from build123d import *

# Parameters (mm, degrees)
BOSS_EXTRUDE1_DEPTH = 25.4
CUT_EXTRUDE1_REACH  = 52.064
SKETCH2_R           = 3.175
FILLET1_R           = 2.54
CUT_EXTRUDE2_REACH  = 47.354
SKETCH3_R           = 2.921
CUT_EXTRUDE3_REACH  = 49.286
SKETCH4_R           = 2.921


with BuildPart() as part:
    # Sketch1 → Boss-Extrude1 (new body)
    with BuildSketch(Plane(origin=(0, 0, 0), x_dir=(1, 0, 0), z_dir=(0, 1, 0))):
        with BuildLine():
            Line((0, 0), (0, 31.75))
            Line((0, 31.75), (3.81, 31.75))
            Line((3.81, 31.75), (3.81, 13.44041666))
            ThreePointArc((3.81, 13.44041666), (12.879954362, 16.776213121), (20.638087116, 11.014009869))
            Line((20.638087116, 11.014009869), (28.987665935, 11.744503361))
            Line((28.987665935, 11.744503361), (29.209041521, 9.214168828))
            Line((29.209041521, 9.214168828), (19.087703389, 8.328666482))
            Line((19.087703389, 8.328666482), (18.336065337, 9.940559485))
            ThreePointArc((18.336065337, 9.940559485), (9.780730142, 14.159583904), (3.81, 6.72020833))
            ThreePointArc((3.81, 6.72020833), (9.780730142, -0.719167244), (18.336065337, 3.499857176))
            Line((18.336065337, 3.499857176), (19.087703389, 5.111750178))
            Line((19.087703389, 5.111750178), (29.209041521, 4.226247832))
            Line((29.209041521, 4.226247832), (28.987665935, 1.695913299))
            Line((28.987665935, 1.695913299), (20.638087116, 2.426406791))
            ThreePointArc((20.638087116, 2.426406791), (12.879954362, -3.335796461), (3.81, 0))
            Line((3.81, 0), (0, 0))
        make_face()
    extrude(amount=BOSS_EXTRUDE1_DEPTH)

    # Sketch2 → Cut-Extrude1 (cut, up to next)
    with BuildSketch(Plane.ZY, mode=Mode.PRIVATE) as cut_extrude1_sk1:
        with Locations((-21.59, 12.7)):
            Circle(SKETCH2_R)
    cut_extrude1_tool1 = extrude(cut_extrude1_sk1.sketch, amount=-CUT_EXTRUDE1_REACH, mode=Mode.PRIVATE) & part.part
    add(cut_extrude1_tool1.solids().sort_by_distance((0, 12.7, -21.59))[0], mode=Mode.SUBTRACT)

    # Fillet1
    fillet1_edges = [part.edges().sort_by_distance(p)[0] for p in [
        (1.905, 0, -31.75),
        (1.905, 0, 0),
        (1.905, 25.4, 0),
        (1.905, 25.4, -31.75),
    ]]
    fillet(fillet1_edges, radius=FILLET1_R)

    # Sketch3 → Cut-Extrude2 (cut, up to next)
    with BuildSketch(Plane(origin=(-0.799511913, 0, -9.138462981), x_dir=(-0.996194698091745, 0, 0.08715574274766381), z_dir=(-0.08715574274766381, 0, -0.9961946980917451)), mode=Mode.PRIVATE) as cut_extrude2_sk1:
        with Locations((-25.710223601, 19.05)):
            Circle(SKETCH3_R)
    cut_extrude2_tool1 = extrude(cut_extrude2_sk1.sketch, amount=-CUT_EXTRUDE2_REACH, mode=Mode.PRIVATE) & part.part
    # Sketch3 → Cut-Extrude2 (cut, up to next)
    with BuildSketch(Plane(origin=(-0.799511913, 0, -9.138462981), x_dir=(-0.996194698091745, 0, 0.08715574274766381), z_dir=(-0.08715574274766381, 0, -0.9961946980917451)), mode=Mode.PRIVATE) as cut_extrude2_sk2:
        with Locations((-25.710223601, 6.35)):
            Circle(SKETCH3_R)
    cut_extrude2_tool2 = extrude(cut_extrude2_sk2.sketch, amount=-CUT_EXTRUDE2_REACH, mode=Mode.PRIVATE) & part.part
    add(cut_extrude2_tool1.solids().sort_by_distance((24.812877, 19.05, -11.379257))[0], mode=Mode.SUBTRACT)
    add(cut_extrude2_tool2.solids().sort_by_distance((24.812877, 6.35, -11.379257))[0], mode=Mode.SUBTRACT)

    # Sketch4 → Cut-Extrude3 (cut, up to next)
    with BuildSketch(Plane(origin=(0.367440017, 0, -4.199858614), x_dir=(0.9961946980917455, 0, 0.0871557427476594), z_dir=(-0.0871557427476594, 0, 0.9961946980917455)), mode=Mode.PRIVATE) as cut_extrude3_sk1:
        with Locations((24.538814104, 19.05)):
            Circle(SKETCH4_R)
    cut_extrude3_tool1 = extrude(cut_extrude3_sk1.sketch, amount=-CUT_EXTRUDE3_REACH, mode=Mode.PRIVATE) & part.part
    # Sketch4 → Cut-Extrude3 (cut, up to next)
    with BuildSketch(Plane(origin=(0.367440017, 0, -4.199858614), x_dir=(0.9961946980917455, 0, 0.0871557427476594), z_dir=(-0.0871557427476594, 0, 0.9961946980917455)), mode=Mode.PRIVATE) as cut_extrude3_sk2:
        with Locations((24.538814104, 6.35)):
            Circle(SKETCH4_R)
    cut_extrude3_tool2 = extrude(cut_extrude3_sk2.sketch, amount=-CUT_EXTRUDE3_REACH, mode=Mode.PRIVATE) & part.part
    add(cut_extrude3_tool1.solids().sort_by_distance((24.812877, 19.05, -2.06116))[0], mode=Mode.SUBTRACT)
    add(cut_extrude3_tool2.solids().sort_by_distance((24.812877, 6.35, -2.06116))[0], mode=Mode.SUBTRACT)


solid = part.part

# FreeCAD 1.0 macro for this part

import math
import FreeCAD as App
import Part
import Sketcher
Q = App.Units.Quantity


def edges_at(feature, points):
    """Names of the edges that pass closest to the given points."""
    edges = feature.Shape.Edges
    near = lambda p: min(range(len(edges)), key=lambda i: edges[i].distToShape(Part.Vertex(*p))[0])
    return sorted({f"Edge{near(p) + 1}" for p in points})

doc = App.newDocument("Part")
params = doc.addObject("Spreadsheet::Sheet", "Params")
for row, (alias, value) in enumerate([
    ("sketch1_radius", "0.4 in"),
    ("sketch1_radius2", "0.3 in"),
    ("sketch1_length", "0.1 in"),
    ("sketch1_length2", "0.4 in"),
    ("sketch1_width", "0.15 in"),
    ("pad1_length", "1 in"),
    ("sketch2_diameter", "0.25 in"),
    ("fillet_radius", "0.1 in"),
    ("sketch3_diameter", "0.23 in"),
    ("sketch4_diameter", "0.23 in"),
    ("sketch5_diameter", "0.23 in"),
    ("sketch6_diameter", "0.23 in"),
], start=1):
    params.set(f"A{row}", alias)
    params.set(f"B{row}", "=" + value)
    params.setAlias(f"B{row}", alias)

body = doc.addObject("PartDesign::Body", "Body")

# Sketch on XZ plane
sketch1 = doc.addObject("Sketcher::SketchObject", "Sketch")
body.addObject(sketch1)
sketch1.AttachmentSupport = (doc.XZ_Plane, [""])
sketch1.MapMode = "FlatFace"
sketch1.addGeometry(Part.LineSegment(App.Vector(0, -31.8, 0), App.Vector(0, 0, 0)), False)
sketch1.addGeometry(Part.LineSegment(App.Vector(0, 0, 0), App.Vector(3.8, 0, 0)), False)
sketch1.addGeometry(Part.ArcOfCircle(Part.Circle(App.Vector(11.4, -6.7, 0), App.Vector(0, 0, 1), 10.2), math.radians(25), math.radians(139)), False)
sketch1.addGeometry(Part.LineSegment(App.Vector(20.6, -2.4, 0), App.Vector(29, -1.7, 0)), False)
sketch1.addGeometry(Part.LineSegment(App.Vector(29, -1.7, 0), App.Vector(29.2, -4.2, 0)), False)
sketch1.addGeometry(Part.LineSegment(App.Vector(29.2, -4.2, 0), App.Vector(19.1, -5.1, 0)), False)
sketch1.addGeometry(Part.LineSegment(App.Vector(19.1, -5.1, 0), App.Vector(18.3, -3.5, 0)), False)
sketch1.addGeometry(Part.ArcOfCircle(Part.Circle(App.Vector(11.4, -6.7, 0), App.Vector(0, 0, 1), 7.6), math.radians(25), math.radians(180)), False)
sketch1.addGeometry(Part.ArcOfCircle(Part.Circle(App.Vector(11.4, -6.7, 0), App.Vector(0, 0, 1), 7.6), math.radians(180), math.radians(335)), False)
sketch1.addGeometry(Part.LineSegment(App.Vector(18.3, -9.9, 0), App.Vector(19.1, -8.3, 0)), False)
sketch1.addGeometry(Part.LineSegment(App.Vector(19.1, -8.3, 0), App.Vector(29.2, -9.2, 0)), False)
sketch1.addGeometry(Part.LineSegment(App.Vector(29.2, -9.2, 0), App.Vector(29, -11.7, 0)), False)
sketch1.addGeometry(Part.LineSegment(App.Vector(29, -11.7, 0), App.Vector(20.6, -11, 0)), False)
sketch1.addGeometry(Part.ArcOfCircle(Part.Circle(App.Vector(11.4, -6.7, 0), App.Vector(0, 0, 1), 10.2), math.radians(-139), math.radians(-25)), False)
sketch1.addGeometry(Part.LineSegment(App.Vector(3.8, -13.4, 0), App.Vector(3.8, -31.8, 0)), False)
sketch1.addGeometry(Part.LineSegment(App.Vector(3.8, -31.8, 0), App.Vector(0, -31.8, 0)), False)
sketch1.addConstraint(Sketcher.Constraint("Coincident", 0, 2, 1, 1))
sketch1.addConstraint(Sketcher.Constraint("Coincident", 1, 2, 2, 2))
sketch1.addConstraint(Sketcher.Constraint("Coincident", 2, 1, 3, 1))
sketch1.addConstraint(Sketcher.Constraint("Coincident", 3, 2, 4, 1))
sketch1.addConstraint(Sketcher.Constraint("Coincident", 4, 2, 5, 1))
sketch1.addConstraint(Sketcher.Constraint("Coincident", 5, 2, 6, 1))
sketch1.addConstraint(Sketcher.Constraint("Tangent", 6, 2, 7, 1))
sketch1.addConstraint(Sketcher.Constraint("Tangent", 7, 2, 8, 1))
sketch1.addConstraint(Sketcher.Constraint("Tangent", 8, 2, 9, 1))
sketch1.addConstraint(Sketcher.Constraint("Coincident", 9, 2, 10, 1))
sketch1.addConstraint(Sketcher.Constraint("Coincident", 10, 2, 11, 1))
sketch1.addConstraint(Sketcher.Constraint("Coincident", 11, 2, 12, 1))
sketch1.addConstraint(Sketcher.Constraint("Coincident", 12, 2, 13, 2))
sketch1.addConstraint(Sketcher.Constraint("Coincident", 13, 1, 14, 1))
sketch1.addConstraint(Sketcher.Constraint("Coincident", 14, 2, 15, 1))
sketch1.addConstraint(Sketcher.Constraint("Coincident", 15, 2, 0, 1))
sketch1.addConstraint(Sketcher.Constraint("Vertical", 0))
sketch1.addConstraint(Sketcher.Constraint("Horizontal", 1))
sketch1.addConstraint(Sketcher.Constraint("Vertical", 14))
sketch1.addConstraint(Sketcher.Constraint("Horizontal", 15))
sketch1.addConstraint(Sketcher.Constraint("Coincident", 0, 2, -1, 1))
sketch1.addConstraint(Sketcher.Constraint("Coincident", 7, 3, 2, 3))
sketch1.addConstraint(Sketcher.Constraint("Coincident", 13, 3, 2, 3))
sketch1.addConstraint(Sketcher.Constraint("Equal", 7, 8))
sketch1.addConstraint(Sketcher.Constraint("Equal", 2, 13))
sketch1.addConstraint(Sketcher.Constraint("Perpendicular", 3, 4))
sketch1.addConstraint(Sketcher.Constraint("Perpendicular", 4, 5))
sketch1.addConstraint(Sketcher.Constraint("Perpendicular", 10, 11))
sketch1.addConstraint(Sketcher.Constraint("Perpendicular", 11, 12))
sketch1.addConstraint(Sketcher.Constraint("Horizontal", 13, 3, 7, 2))
sketch1.addConstraint(Sketcher.Constraint("Vertical", 1, 2, 7, 2))
sketch1.addConstraint(Sketcher.Constraint("Vertical", 6, 2, 8, 2))
sketch1.addConstraint(Sketcher.Constraint("Vertical", 5, 2, 9, 2))
sketch1.addConstraint(Sketcher.Constraint("Vertical", 4, 2, 10, 2))
sketch1.addConstraint(Sketcher.Constraint("Vertical", 3, 2, 11, 2))
sketch1.addConstraint(Sketcher.Constraint("Vertical", 2, 1, 12, 2))
sketch1.addConstraint(Sketcher.Constraint("Vertical", 7, 2, 13, 1))
sketch1.addConstraint(Sketcher.Constraint("Radius", 2, Q("0.4 in")))
sketch1.addConstraint(Sketcher.Constraint("Radius", 7, Q("0.3 in")))
sketch1.addConstraint(Sketcher.Constraint("Angle", 3, Q("5 deg")))
sketch1.addConstraint(Sketcher.Constraint("Angle", 6, Q("115 deg")))
sketch1.addConstraint(Sketcher.Constraint("Distance", 4, Q("0.1 in")))
sketch1.addConstraint(Sketcher.Constraint("Distance", 5, Q("0.4 in")))
sketch1.addConstraint(Sketcher.Constraint("DistanceX", 1, 1, 1, 2, Q("0.15 in")))
sketch1.addConstraint(Sketcher.Constraint("DistanceY", 0, 1, 0, 2, Q("1.25 in")))
sketch1.addConstraint(Sketcher.Constraint("DistanceY", 2, 3, 2, 1, Q("4.293802 mm")))
sketch1.setExpression("Constraints[37]", "Params.sketch1_radius")
sketch1.setExpression("Constraints[38]", "Params.sketch1_radius2")
sketch1.setExpression("Constraints[41]", "Params.sketch1_length")
sketch1.setExpression("Constraints[42]", "Params.sketch1_length2")
sketch1.setExpression("Constraints[43]", "Params.sketch1_width")
pad1 = doc.addObject("PartDesign::Pad", "Pad")
body.addObject(pad1)
pad1.Profile = sketch1
pad1.setExpression("Length", "Params.pad1_length")
pad1.Reversed = True

# Sketch on YZ plane
sketch2 = doc.addObject("Sketcher::SketchObject", "Sketch001")
body.addObject(sketch2)
sketch2.AttachmentSupport = (doc.YZ_Plane, [""])
sketch2.MapMode = "FlatFace"
sketch2.addGeometry(Part.Circle(App.Vector(12.7, -21.6, 0), App.Vector(0, 0, 1), 3.2), False)
sketch2.addConstraint(Sketcher.Constraint("Diameter", 0, Q("0.25 in")))
sketch2.addConstraint(Sketcher.Constraint("DistanceX", -1, 1, 0, 3, Q("0.5 in")))
sketch2.addConstraint(Sketcher.Constraint("DistanceY", 0, 3, -1, 1, Q("0.85 in")))
sketch2.setExpression("Constraints[0]", "Params.sketch2_diameter")
pocket1 = doc.addObject("PartDesign::Pocket", "Pocket")
body.addObject(pocket1)
pocket1.Profile = sketch2
pocket1.Type = "UpToFirst"
pocket1.Reversed = True
doc.recompute()

fillet = doc.addObject("PartDesign::Fillet", "Fillet")
body.addObject(fillet)
fillet.Base = (pocket1, edges_at(pocket1, [
    (1.905, 0, -31.75),
    (1.905, 0, 0),
    (1.905, 25.4, 0),
    (1.905, 25.4, -31.75),
]))
fillet.setExpression("Radius", "Params.fillet_radius")

# Sketch on an angled plane
sketch3 = doc.addObject("Sketcher::SketchObject", "Sketch002")
body.addObject(sketch3)
sketch3.Placement = App.Placement(App.Vector(-0.799512, 0, -9.138463), App.Rotation(App.Vector(-0.996194698, 0, 0.087155743), App.Vector(0, 1, 0), App.Vector(-0.087155743, 0, -0.996194698), "ZXY"))
sketch3.addGeometry(Part.Circle(App.Vector(-25.7, 19, 0), App.Vector(0, 0, 1), 2.9), False)
sketch3.addConstraint(Sketcher.Constraint("Diameter", 0, Q("0.23 in")))
sketch3.addConstraint(Sketcher.Constraint("DistanceY", -1, 1, 0, 3, Q("0.75 in")))
sketch3.addConstraint(Sketcher.Constraint("DistanceX", 0, 3, -1, 1, Q("25.710224 mm")))
sketch3.setExpression("Constraints[0]", "Params.sketch3_diameter")
pocket2 = doc.addObject("PartDesign::Pocket", "Pocket001")
body.addObject(pocket2)
pocket2.Profile = sketch3
pocket2.Type = "UpToFirst"

# Sketch on an angled plane
sketch4 = doc.addObject("Sketcher::SketchObject", "Sketch003")
body.addObject(sketch4)
sketch4.Placement = App.Placement(App.Vector(-0.799512, 0, -9.138463), App.Rotation(App.Vector(-0.996194698, 0, 0.087155743), App.Vector(0, 1, 0), App.Vector(-0.087155743, 0, -0.996194698), "ZXY"))
sketch4.addGeometry(Part.Circle(App.Vector(-25.7, 6.3, 0), App.Vector(0, 0, 1), 2.9), False)
sketch4.addConstraint(Sketcher.Constraint("Diameter", 0, Q("0.23 in")))
sketch4.addConstraint(Sketcher.Constraint("DistanceY", -1, 1, 0, 3, Q("0.25 in")))
sketch4.addConstraint(Sketcher.Constraint("DistanceX", 0, 3, -1, 1, Q("25.710224 mm")))
sketch4.setExpression("Constraints[0]", "Params.sketch4_diameter")
pocket3 = doc.addObject("PartDesign::Pocket", "Pocket002")
body.addObject(pocket3)
pocket3.Profile = sketch4
pocket3.Type = "UpToFirst"

# Sketch on an angled plane
sketch5 = doc.addObject("Sketcher::SketchObject", "Sketch004")
body.addObject(sketch5)
sketch5.Placement = App.Placement(App.Vector(0.36744, 0, -4.199859), App.Rotation(App.Vector(0.996194698, 0, 0.087155743), App.Vector(0, 1, 0), App.Vector(-0.087155743, 0, 0.996194698), "ZXY"))
sketch5.addGeometry(Part.Circle(App.Vector(24.5, 19, 0), App.Vector(0, 0, 1), 2.9), False)
sketch5.addConstraint(Sketcher.Constraint("Diameter", 0, Q("0.23 in")))
sketch5.addConstraint(Sketcher.Constraint("DistanceY", -1, 1, 0, 3, Q("0.75 in")))
sketch5.addConstraint(Sketcher.Constraint("DistanceX", -1, 1, 0, 3, Q("24.538814 mm")))
sketch5.setExpression("Constraints[0]", "Params.sketch5_diameter")
pocket4 = doc.addObject("PartDesign::Pocket", "Pocket003")
body.addObject(pocket4)
pocket4.Profile = sketch5
pocket4.Type = "UpToFirst"

# Sketch on an angled plane
sketch6 = doc.addObject("Sketcher::SketchObject", "Sketch005")
body.addObject(sketch6)
sketch6.Placement = App.Placement(App.Vector(0.36744, 0, -4.199859), App.Rotation(App.Vector(0.996194698, 0, 0.087155743), App.Vector(0, 1, 0), App.Vector(-0.087155743, 0, 0.996194698), "ZXY"))
sketch6.addGeometry(Part.Circle(App.Vector(24.5, 6.3, 0), App.Vector(0, 0, 1), 2.9), False)
sketch6.addConstraint(Sketcher.Constraint("Diameter", 0, Q("0.23 in")))
sketch6.addConstraint(Sketcher.Constraint("DistanceY", -1, 1, 0, 3, Q("0.25 in")))
sketch6.addConstraint(Sketcher.Constraint("DistanceX", -1, 1, 0, 3, Q("24.538814 mm")))
sketch6.setExpression("Constraints[0]", "Params.sketch6_diameter")
pocket5 = doc.addObject("PartDesign::Pocket", "Pocket004")
body.addObject(pocket5)
pocket5.Profile = sketch6
pocket5.Type = "UpToFirst"

doc.recompute()
